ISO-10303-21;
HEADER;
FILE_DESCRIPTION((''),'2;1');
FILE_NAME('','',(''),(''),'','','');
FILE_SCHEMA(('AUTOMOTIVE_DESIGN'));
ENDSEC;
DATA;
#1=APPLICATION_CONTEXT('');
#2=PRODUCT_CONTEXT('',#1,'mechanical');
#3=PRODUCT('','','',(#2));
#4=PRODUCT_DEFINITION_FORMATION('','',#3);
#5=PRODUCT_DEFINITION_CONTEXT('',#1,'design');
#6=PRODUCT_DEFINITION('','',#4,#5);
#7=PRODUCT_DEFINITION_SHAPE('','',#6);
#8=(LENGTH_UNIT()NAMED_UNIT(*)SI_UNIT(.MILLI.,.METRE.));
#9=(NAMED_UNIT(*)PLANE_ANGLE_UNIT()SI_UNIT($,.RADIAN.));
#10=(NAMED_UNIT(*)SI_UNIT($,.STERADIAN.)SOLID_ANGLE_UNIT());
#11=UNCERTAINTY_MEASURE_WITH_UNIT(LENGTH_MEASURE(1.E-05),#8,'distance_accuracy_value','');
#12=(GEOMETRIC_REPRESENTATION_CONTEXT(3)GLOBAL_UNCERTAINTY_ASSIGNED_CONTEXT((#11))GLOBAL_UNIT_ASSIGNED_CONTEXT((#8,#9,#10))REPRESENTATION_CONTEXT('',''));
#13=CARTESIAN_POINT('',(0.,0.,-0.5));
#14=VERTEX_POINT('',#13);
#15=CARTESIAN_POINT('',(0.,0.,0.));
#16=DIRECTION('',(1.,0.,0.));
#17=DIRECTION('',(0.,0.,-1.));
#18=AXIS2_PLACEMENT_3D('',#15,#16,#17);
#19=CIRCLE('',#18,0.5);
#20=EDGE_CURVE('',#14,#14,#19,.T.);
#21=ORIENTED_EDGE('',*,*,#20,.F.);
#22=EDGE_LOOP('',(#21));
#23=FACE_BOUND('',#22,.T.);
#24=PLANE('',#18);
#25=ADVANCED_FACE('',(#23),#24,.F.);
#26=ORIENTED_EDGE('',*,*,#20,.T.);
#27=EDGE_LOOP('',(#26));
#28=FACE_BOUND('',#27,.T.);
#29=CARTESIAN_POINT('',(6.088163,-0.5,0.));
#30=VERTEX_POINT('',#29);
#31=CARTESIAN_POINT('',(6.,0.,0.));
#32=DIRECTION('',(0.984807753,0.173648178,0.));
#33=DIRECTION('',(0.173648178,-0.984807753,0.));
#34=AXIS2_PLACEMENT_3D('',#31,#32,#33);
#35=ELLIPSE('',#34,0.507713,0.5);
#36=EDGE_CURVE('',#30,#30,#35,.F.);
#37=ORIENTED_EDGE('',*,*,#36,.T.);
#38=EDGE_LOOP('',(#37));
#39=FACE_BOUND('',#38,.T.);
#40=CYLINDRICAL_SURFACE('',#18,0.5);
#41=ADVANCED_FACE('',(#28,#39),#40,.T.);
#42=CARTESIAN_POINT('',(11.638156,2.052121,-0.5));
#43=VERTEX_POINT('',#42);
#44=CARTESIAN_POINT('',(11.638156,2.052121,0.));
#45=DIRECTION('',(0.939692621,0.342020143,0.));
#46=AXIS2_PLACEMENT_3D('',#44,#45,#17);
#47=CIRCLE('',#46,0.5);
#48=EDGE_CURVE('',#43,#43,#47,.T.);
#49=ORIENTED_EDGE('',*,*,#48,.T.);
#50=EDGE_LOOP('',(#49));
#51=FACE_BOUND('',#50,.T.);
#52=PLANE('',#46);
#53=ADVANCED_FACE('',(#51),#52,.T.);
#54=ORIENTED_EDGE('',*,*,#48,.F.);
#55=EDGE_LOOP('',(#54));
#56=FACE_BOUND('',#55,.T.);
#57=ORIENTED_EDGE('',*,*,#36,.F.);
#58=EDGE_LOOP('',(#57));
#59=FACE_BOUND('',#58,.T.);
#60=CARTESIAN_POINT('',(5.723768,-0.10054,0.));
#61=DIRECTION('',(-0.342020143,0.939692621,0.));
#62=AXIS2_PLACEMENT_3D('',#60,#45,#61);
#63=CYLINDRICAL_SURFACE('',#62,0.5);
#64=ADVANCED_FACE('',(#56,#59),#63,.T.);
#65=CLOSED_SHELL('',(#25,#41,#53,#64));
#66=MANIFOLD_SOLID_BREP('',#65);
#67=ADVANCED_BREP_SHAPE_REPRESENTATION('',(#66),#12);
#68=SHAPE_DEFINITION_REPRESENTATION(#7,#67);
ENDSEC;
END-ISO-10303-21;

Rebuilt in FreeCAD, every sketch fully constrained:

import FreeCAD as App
import Part
import Sketcher
Q = App.Units.Quantity

doc = App.newDocument("Part")
body = doc.addObject("PartDesign::Body", "Body")

# Sketch on YZ plane
sketch1 = body.newObject("Sketcher::SketchObject", "Sketch")
sketch1.AttachmentSupport = (doc.getObject("YZ_Plane"), [""])
sketch1.MapMode = "FlatFace"
sketch1.addGeometry(Part.Circle(App.Vector(0, 0, 0), App.Vector(0, 0, 1), 0.5), False)
sketch1.addConstraint(Sketcher.Constraint("Coincident", 0, 3, -1, 1))
sketch1.addConstraint(Sketcher.Constraint("Diameter", 0, Q("1 mm")))

# Sketch on XY plane
sketch2 = body.newObject("Sketcher::SketchObject", "Sketch001")
sketch2.AttachmentSupport = (doc.getObject("XY_Plane"), [""])
sketch2.MapMode = "FlatFace"
sketch2.addGeometry(Part.LineSegment(App.Vector(0, 0, 0), App.Vector(6, 0, 0)), False)
sketch2.addGeometry(Part.LineSegment(App.Vector(6, 0, 0), App.Vector(11.638156, 2.052121, 0)), False)
sketch2.addConstraint(Sketcher.Constraint("Coincident", 0, 2, 1, 1))
sketch2.addConstraint(Sketcher.Constraint("Horizontal", 0))
sketch2.addConstraint(Sketcher.Constraint("Coincident", 0, 1, -1, 1))
sketch2.addConstraint(Sketcher.Constraint("DistanceX", 0, 1, 0, 2, Q("6 mm")))
sketch2.addConstraint(Sketcher.Constraint("Angle", 1, Q("20 deg")))
sketch2.addConstraint(Sketcher.Constraint("Distance", 1, Q("6 mm")))
doc.recompute()

additivepipe = body.newObject("PartDesign::AdditivePipe", "AdditivePipe")
additivepipe.Profile = sketch1
additivepipe.Spine = (sketch2, ["Edge1", "Edge2"])
additivepipe.Transition = "Right corner"

doc.recompute()
